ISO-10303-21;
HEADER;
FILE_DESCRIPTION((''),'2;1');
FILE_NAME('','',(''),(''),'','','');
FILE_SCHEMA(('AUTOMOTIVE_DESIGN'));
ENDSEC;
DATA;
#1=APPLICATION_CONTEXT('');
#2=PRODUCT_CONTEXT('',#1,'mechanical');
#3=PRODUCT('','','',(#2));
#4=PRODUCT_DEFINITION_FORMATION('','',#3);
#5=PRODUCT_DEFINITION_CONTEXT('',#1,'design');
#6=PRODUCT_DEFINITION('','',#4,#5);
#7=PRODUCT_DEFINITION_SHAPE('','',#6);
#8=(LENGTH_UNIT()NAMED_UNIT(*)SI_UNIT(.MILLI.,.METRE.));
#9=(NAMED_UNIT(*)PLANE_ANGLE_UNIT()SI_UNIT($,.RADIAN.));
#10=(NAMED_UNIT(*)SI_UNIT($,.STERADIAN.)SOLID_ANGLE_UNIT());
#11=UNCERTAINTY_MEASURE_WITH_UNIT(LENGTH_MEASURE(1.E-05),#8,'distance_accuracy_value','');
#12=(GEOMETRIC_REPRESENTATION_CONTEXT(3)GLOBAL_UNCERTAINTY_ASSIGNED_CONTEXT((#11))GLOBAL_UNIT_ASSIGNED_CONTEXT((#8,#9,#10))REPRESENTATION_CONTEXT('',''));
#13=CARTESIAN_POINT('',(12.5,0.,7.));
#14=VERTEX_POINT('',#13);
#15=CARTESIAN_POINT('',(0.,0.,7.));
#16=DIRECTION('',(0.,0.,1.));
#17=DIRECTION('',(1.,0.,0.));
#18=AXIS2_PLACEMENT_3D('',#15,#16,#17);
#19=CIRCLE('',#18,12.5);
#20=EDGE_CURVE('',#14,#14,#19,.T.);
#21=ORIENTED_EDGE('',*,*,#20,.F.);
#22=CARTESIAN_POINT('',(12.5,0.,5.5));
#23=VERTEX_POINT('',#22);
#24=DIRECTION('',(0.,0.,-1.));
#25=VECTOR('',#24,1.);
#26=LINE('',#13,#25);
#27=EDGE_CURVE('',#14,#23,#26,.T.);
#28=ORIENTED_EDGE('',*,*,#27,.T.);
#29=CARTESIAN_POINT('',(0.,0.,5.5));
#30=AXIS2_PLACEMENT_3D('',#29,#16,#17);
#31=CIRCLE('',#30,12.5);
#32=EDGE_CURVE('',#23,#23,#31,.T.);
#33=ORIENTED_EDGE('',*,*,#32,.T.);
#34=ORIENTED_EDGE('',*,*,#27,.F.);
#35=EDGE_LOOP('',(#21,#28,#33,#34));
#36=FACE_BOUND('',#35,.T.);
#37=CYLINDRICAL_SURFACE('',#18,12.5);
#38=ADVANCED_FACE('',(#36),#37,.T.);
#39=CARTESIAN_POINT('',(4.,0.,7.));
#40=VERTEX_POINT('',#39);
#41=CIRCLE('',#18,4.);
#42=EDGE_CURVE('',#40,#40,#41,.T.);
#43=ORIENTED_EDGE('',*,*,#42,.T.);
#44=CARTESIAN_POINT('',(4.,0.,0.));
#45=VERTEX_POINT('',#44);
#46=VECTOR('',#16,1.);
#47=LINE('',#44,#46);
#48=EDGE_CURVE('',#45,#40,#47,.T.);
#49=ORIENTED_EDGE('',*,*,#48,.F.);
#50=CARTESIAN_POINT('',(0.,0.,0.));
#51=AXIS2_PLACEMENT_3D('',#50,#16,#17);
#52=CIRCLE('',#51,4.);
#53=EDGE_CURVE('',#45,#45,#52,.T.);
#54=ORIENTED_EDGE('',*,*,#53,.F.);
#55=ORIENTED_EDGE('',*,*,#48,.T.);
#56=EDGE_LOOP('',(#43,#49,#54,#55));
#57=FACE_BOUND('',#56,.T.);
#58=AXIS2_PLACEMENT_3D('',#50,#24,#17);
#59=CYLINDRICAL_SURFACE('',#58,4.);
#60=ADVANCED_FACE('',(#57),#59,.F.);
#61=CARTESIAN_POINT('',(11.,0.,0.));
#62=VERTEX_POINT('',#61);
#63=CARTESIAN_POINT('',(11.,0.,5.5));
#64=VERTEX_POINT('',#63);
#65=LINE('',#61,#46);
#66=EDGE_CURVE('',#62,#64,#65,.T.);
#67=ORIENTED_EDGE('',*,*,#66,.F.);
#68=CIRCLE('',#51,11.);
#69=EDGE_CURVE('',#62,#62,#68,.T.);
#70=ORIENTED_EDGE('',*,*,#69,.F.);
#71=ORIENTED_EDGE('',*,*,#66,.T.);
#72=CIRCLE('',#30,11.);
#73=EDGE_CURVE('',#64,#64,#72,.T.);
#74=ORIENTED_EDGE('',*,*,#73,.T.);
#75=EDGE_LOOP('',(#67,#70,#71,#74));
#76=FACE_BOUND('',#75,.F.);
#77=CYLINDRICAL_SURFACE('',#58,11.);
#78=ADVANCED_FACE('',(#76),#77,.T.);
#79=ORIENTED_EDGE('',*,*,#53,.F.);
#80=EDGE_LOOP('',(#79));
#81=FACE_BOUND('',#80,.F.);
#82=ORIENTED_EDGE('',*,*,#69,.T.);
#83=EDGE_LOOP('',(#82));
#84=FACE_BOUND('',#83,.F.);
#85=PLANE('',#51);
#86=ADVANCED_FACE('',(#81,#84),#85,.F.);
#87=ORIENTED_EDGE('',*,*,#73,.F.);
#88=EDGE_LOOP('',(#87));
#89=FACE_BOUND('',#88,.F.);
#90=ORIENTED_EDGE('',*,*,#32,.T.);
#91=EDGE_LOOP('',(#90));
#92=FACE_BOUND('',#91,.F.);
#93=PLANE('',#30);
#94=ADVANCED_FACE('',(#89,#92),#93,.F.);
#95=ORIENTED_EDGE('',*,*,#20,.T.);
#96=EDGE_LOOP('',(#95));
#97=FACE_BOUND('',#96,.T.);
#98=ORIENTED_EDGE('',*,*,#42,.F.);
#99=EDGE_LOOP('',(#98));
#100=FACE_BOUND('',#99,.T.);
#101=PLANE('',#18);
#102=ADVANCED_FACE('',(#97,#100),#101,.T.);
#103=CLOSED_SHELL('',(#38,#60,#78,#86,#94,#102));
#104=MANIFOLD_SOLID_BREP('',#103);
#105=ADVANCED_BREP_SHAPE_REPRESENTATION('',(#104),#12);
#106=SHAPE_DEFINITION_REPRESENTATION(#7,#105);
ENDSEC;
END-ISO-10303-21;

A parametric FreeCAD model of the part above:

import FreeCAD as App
import Part
import Sketcher

doc = App.newDocument("Part")
body = doc.addObject("PartDesign::Body", "Body")

sketch1 = body.newObject("Sketcher::SketchObject", "Sketch")
sketch1.AttachmentSupport = (doc.getObject("XY_Plane"), [""])
sketch1.MapMode = "FlatFace"
sketch1.addGeometry(Part.Circle(App.Vector(0, 0, 0), App.Vector(0, 0, 1), 11), False)
sketch1.addGeometry(Part.Circle(App.Vector(0, 0, 0), App.Vector(0, 0, 1), 4), False)
sketch1.addConstraint(Sketcher.Constraint("Coincident", 0, 3, -1, 1))
sketch1.addConstraint(Sketcher.Constraint("Coincident", 1, 3, -1, 1))
sketch1.addConstraint(Sketcher.Constraint("Diameter", 0, 22.0))
sketch1.addConstraint(Sketcher.Constraint("Diameter", 1, 8.0))
pad1 = body.newObject("PartDesign::Pad", "Pad")
pad1.Profile = sketch1
pad1.Length = 7

sketch2 = body.newObject("Sketcher::SketchObject", "Sketch001")
sketch2.AttachmentSupport = (doc.getObject("XY_Plane"), [""])
sketch2.MapMode = "FlatFace"
sketch2.AttachmentOffset = App.Placement(App.Vector(0, 0, 7), App.Rotation())
sketch2.addGeometry(Part.Circle(App.Vector(0, 0, 0), App.Vector(0, 0, 1), 12.5), False)
sketch2.addGeometry(Part.Circle(App.Vector(0, 0, 0), App.Vector(0, 0, 1), 11), False)
sketch2.addConstraint(Sketcher.Constraint("Coincident", 0, 3, -1, 1))
sketch2.addConstraint(Sketcher.Constraint("Coincident", 1, 3, -1, 1))
sketch2.addConstraint(Sketcher.Constraint("Diameter", 0, 25.0))
sketch2.addConstraint(Sketcher.Constraint("Diameter", 1, 22.0))
pad2 = body.newObject("PartDesign::Pad", "Pad001")
pad2.Profile = sketch2
pad2.Length = 1.5
pad2.Reversed = True

doc.recompute()
